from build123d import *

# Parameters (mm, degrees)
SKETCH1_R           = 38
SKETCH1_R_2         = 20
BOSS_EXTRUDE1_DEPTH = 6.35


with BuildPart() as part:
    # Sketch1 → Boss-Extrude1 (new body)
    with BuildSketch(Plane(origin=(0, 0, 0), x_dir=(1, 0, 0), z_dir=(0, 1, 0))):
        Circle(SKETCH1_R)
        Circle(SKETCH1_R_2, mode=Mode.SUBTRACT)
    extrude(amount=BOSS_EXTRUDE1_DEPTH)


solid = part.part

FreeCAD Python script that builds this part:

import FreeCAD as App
import Part
import Sketcher
Q = App.Units.Quantity

doc = App.newDocument("Part")
params = doc.addObject("Spreadsheet::Sheet", "Params")
for row, (alias, value) in enumerate([
    ("sketch1_diameter", "76 mm"),
    ("sketch1_diameter2", "40 mm"),
    ("pad1_length", "6.35 mm"),
], start=1):
    params.set(f"A{row}", alias)
    params.set(f"B{row}", "=" + value)
    params.setAlias(f"B{row}", alias)

body = doc.addObject("PartDesign::Body", "Body")

# Sketch on XZ plane
sketch1 = body.newObject("Sketcher::SketchObject", "Sketch")
sketch1.AttachmentSupport = (doc.getObject("XZ_Plane"), [""])
sketch1.MapMode = "FlatFace"
sketch1.addGeometry([
    Part.Circle(App.Vector(0, 0, 0), App.Vector(0, 0, 1), 38),
    Part.Circle(App.Vector(0, 0, 0), App.Vector(0, 0, 1), 20),
], False)
sketch1.addConstraint([
    Sketcher.Constraint("Coincident", 0, 3, -1, 1),
    Sketcher.Constraint("Coincident", 1, 3, -1, 1),
    Sketcher.Constraint("Diameter", 0, Q("76 mm")),
    Sketcher.Constraint("Diameter", 1, Q("40 mm")),
])
sketch1.setExpression("Constraints[2]", "Params.sketch1_diameter")
sketch1.setExpression("Constraints[3]", "Params.sketch1_diameter2")
pad1 = body.newObject("PartDesign::Pad", "Pad")
pad1.Profile = sketch1
pad1.setExpression("Length", "Params.pad1_length")
pad1.Reversed = True

doc.recompute()
